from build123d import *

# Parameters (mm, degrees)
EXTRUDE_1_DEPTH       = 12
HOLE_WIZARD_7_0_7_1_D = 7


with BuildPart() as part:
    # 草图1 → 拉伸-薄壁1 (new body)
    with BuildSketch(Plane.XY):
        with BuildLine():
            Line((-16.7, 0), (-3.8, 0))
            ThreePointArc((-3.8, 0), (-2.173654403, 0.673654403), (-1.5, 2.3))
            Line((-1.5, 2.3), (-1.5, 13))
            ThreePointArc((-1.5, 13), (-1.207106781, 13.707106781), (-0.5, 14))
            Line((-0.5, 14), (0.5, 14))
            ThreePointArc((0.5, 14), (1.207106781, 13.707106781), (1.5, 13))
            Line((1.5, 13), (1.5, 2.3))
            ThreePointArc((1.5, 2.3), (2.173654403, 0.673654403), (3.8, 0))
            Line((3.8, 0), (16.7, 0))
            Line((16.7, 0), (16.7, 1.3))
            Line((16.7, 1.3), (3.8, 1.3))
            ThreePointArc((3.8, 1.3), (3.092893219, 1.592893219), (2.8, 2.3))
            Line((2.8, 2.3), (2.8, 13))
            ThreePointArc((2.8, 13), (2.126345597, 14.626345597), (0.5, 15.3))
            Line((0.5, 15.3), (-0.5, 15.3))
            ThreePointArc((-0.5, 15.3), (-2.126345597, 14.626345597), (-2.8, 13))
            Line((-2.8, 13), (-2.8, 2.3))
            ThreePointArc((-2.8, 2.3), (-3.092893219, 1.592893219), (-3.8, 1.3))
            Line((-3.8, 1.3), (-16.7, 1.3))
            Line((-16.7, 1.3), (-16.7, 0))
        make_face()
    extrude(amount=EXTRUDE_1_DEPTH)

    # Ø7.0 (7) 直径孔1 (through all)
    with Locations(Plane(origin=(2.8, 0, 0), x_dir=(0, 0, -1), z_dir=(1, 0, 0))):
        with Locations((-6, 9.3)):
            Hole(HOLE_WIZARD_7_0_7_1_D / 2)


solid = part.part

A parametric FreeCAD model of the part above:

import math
import FreeCAD as App
import Part
import Sketcher

doc = App.newDocument("Part")
body = doc.addObject("PartDesign::Body", "Body")

# Sketch on XY plane
sketch1 = body.newObject("Sketcher::SketchObject", "Sketch")
sketch1.AttachmentSupport = (doc.getObject("XY_Plane"), [""])
sketch1.MapMode = "FlatFace"
sketch1.addGeometry([
    Part.LineSegment(App.Vector(-16.7, 0, 0), App.Vector(-3.8, 0, 0)),  # 0
    Part.ArcOfCircle(Part.Circle(App.Vector(-3.8, 2.3, 0), App.Vector(0, 0, 1), 2.3), math.radians(-90), math.radians(0)),  # 1
    Part.LineSegment(App.Vector(-1.5, 2.3, 0), App.Vector(-1.5, 13, 0)),  # 2
    Part.ArcOfCircle(Part.Circle(App.Vector(-0.5, 13, 0), App.Vector(0, 0, 1), 1), math.radians(90), math.radians(180)),  # 3
    Part.LineSegment(App.Vector(-0.5, 14, 0), App.Vector(0.5, 14, 0)),  # 4
    Part.ArcOfCircle(Part.Circle(App.Vector(0.5, 13, 0), App.Vector(0, 0, 1), 1), math.radians(0), math.radians(90)),  # 5
    Part.LineSegment(App.Vector(1.5, 13, 0), App.Vector(1.5, 2.3, 0)),  # 6
    Part.ArcOfCircle(Part.Circle(App.Vector(3.8, 2.3, 0), App.Vector(0, 0, 1), 2.3), math.radians(180), math.radians(270)),  # 7
    Part.LineSegment(App.Vector(3.8, 0, 0), App.Vector(16.7, 0, 0)),  # 8
    Part.LineSegment(App.Vector(16.7, 0, 0), App.Vector(16.7, 1.3, 0)),  # 9
    Part.LineSegment(App.Vector(16.7, 1.3, 0), App.Vector(3.8, 1.3, 0)),  # 10
    Part.ArcOfCircle(Part.Circle(App.Vector(3.8, 2.3, 0), App.Vector(0, 0, 1), 1), math.radians(-180), math.radians(-90)),  # 11
    Part.LineSegment(App.Vector(2.8, 2.3, 0), App.Vector(2.8, 13, 0)),  # 12
    Part.ArcOfCircle(Part.Circle(App.Vector(0.5, 13, 0), App.Vector(0, 0, 1), 2.3), math.radians(0), math.radians(90)),  # 13
    Part.LineSegment(App.Vector(0.5, 15.3, 0), App.Vector(-0.5, 15.3, 0)),  # 14
    Part.ArcOfCircle(Part.Circle(App.Vector(-0.5, 13, 0), App.Vector(0, 0, 1), 2.3), math.radians(90), math.radians(180)),  # 15
    Part.LineSegment(App.Vector(-2.8, 13, 0), App.Vector(-2.8, 2.3, 0)),  # 16
    Part.ArcOfCircle(Part.Circle(App.Vector(-3.8, 2.3, 0), App.Vector(0, 0, 1), 1), math.radians(-90), math.radians(0)),  # 17
    Part.LineSegment(App.Vector(-3.8, 1.3, 0), App.Vector(-16.7, 1.3, 0)),  # 18
    Part.LineSegment(App.Vector(-16.7, 1.3, 0), App.Vector(-16.7, 0, 0)),  # 19
], False)
sketch1.addConstraint([
    Sketcher.Constraint("Tangent", 0, 2, 1, 1),
    Sketcher.Constraint("Tangent", 1, 2, 2, 1),
    Sketcher.Constraint("Tangent", 2, 2, 3, 2),
    Sketcher.Constraint("Tangent", 3, 1, 4, 1),
    Sketcher.Constraint("Tangent", 4, 2, 5, 2),
    Sketcher.Constraint("Tangent", 5, 1, 6, 1),
    Sketcher.Constraint("Tangent", 6, 2, 7, 1),
    Sketcher.Constraint("Tangent", 7, 2, 8, 1),
    Sketcher.Constraint("Coincident", 8, 2, 9, 1),
    Sketcher.Constraint("Coincident", 9, 2, 10, 1),
    Sketcher.Constraint("Tangent", 10, 2, 11, 2),
    Sketcher.Constraint("Tangent", 11, 1, 12, 1),
    Sketcher.Constraint("Tangent", 12, 2, 13, 1),
    Sketcher.Constraint("Tangent", 13, 2, 14, 1),
    Sketcher.Constraint("Tangent", 14, 2, 15, 1),
    Sketcher.Constraint("Tangent", 15, 2, 16, 1),
    Sketcher.Constraint("Tangent", 16, 2, 17, 2),
    Sketcher.Constraint("Tangent", 17, 1, 18, 1),
    Sketcher.Constraint("Coincident", 18, 2, 19, 1),
    Sketcher.Constraint("Coincident", 19, 2, 0, 1),
    Sketcher.Constraint("Horizontal", 0),
    Sketcher.Constraint("Vertical", 2),
    Sketcher.Constraint("Horizontal", 4),
    Sketcher.Constraint("Vertical", 6),
    Sketcher.Constraint("Horizontal", 8),
    Sketcher.Constraint("Vertical", 9),
    Sketcher.Constraint("Horizontal", 10),
    Sketcher.Constraint("Vertical", 12),
    Sketcher.Constraint("Horizontal", 14),
    Sketcher.Constraint("Vertical", 16),
    Sketcher.Constraint("Horizontal", 18),
    Sketcher.Constraint("Vertical", 19),
    Sketcher.Constraint("Coincident", 11, 3, 7, 3),
    Sketcher.Constraint("Coincident", 13, 3, 5, 3),
    Sketcher.Constraint("Coincident", 15, 3, 3, 3),
    Sketcher.Constraint("Coincident", 17, 3, 1, 3),
    Sketcher.Constraint("Equal", 3, 5),
    Sketcher.Constraint("Equal", 1, 7),
    Sketcher.Constraint("Equal", 5, 11),
    Sketcher.Constraint("Symmetric", 0, 2, 7, 2, -1, 1),
    Sketcher.Constraint("Symmetric", 9, 2, 18, 2, -2),
    Sketcher.Constraint("Radius", 3, 1.0),
    Sketcher.Constraint("Radius", 1, 2.3),
    Sketcher.Constraint("DistanceX", 4, 1, 4, 2, 1.0),
    Sketcher.Constraint("DistanceX", 0, 1, 0, 2, 12.9),
    Sketcher.Constraint("DistanceY", 2, 1, 2, 2, 10.7),
])
pad1 = body.newObject("PartDesign::Pad", "Pad")
pad1.Profile = sketch1
pad1.Length = 12

# Sketch on YZ plane
sketch2 = body.newObject("Sketcher::SketchObject", "Sketch001")
sketch2.AttachmentSupport = (doc.getObject("YZ_Plane"), [""])
sketch2.MapMode = "FlatFace"
sketch2.AttachmentOffset = App.Placement(App.Vector(0, 0, 2.8), App.Rotation())
sketch2.addGeometry(Part.Circle(App.Vector(9.3, 6, 0), App.Vector(0, 0, 1), 3.5), False)
sketch2.addConstraint([
    Sketcher.Constraint("Diameter", 0, 7.0),
    Sketcher.Constraint("DistanceY", -1, 1, 0, 3, 6.0),
    Sketcher.Constraint("DistanceX", -1, 1, 0, 3, 9.3),
])
doc.recompute()
hole = body.newObject("PartDesign::Hole", "Hole")
hole.Profile = sketch2
hole.ThreadType = "None"
hole.Diameter = 7
hole.DepthType = "ThroughAll"

doc.recompute()
